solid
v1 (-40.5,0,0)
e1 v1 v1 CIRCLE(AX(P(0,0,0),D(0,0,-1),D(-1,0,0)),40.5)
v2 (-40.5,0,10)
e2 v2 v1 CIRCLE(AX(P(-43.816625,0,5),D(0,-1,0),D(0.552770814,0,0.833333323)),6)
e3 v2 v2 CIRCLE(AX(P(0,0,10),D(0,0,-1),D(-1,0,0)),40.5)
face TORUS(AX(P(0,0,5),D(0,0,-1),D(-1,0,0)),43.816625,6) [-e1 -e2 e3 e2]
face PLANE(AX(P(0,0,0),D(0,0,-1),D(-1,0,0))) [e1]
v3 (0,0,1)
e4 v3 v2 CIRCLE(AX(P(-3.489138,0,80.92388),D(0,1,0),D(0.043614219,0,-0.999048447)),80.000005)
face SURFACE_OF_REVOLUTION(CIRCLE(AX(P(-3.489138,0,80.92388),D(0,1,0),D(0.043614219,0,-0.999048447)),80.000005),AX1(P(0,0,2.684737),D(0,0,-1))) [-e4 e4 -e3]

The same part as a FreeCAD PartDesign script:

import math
import FreeCAD as App
import Part
import Sketcher

V = App.Vector
Q = App.Units.Quantity

doc = App.newDocument("Part")
body = doc.addObject("PartDesign::Body", "Body")

sketch1 = body.newObject("Sketcher::SketchObject", "Sketch")
sketch1.AttachmentSupport = (doc.getObject("XZ_Plane"), [""])
sketch1.MapMode = "FlatFace"
sketch1.addGeometry(Part.LineSegment(V(-40.5, 0, 0), V(0, 0, 0)), False)
sketch1.addGeometry(Part.LineSegment(V(0, 0, 0), V(0, 1, 0)), False)
sketch1.addGeometry(Part.ArcOfCircle(Part.Circle(V(-3.489138, 80.92388, 0), V(0, 0, 1), 80.000005), math.radians(-117.557319), math.radians(-87.500296)), False)
sketch1.addGeometry(Part.ArcOfCircle(Part.Circle(V(-43.816625, 5, 0), V(0, 0, 1), 6), math.radians(56.442689), math.radians(303.557311)), False)
sketch1.addConstraint(Sketcher.Constraint("Coincident", 0, 2, 1, 1))
sketch1.addConstraint(Sketcher.Constraint("Coincident", 1, 2, 2, 2))
sketch1.addConstraint(Sketcher.Constraint("Coincident", 2, 1, 3, 1))
sketch1.addConstraint(Sketcher.Constraint("Coincident", 3, 2, 0, 1))
sketch1.addConstraint(Sketcher.Constraint("Horizontal", 0))
sketch1.addConstraint(Sketcher.Constraint("Vertical", 1))
sketch1.addConstraint(Sketcher.Constraint("Coincident", 0, 2, -1, 1))
sketch1.addConstraint(Sketcher.Constraint("Vertical", 2, 1, 3, 2))
sketch1.addConstraint(Sketcher.Constraint("Radius", 3, Q("6 mm")))
sketch1.addConstraint(Sketcher.Constraint("DistanceY", 1, 1, 1, 2, Q("1 mm")))
sketch1.addConstraint(Sketcher.Constraint("DistanceX", 0, 1, 0, 2, Q("40.5 mm")))
sketch1.addConstraint(Sketcher.Constraint("DistanceY", -1, 1, 3, 3, Q("5 mm")))
sketch1.addConstraint(Sketcher.Constraint("Radius", 2, Q("80.000005 mm")))
revolution = body.newObject("PartDesign::Revolution", "Revolution")
revolution.Profile = sketch1
revolution.ReferenceAxis = (sketch1, ["V_Axis"])
revolution.Angle = 360

doc.recompute()
